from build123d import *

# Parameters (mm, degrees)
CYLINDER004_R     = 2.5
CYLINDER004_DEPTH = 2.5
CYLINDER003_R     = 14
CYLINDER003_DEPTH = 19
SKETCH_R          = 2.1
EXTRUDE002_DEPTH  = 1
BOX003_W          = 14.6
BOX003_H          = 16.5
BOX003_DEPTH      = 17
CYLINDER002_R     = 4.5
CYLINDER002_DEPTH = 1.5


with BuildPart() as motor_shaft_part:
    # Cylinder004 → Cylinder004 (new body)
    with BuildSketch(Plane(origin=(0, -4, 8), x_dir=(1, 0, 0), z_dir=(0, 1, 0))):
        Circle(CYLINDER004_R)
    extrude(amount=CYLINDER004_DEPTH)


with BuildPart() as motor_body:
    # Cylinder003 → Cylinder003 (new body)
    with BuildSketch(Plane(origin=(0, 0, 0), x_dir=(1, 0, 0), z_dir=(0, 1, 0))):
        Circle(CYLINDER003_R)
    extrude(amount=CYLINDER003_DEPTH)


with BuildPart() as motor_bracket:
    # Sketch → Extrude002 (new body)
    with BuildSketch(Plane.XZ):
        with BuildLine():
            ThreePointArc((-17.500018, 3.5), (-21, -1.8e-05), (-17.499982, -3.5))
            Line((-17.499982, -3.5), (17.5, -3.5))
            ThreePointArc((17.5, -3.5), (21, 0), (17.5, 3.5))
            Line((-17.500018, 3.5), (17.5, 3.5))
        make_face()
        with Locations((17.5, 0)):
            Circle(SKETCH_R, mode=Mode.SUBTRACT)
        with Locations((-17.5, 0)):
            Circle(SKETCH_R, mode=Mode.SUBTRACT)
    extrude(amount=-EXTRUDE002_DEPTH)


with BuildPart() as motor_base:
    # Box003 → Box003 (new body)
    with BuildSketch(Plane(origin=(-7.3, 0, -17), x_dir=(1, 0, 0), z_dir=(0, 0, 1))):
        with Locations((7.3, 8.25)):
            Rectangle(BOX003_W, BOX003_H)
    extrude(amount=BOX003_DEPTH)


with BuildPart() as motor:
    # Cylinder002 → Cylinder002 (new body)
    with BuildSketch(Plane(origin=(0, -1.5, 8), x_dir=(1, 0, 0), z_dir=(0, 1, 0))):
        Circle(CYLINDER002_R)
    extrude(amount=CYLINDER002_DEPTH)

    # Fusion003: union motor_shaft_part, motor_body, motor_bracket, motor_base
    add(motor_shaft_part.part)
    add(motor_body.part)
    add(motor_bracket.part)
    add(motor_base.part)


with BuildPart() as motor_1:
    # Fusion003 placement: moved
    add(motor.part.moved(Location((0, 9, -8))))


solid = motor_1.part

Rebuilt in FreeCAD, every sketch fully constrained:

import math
import FreeCAD as App
import Part
import Sketcher

V = App.Vector
Q = App.Units.Quantity

doc = App.newDocument("Part")
body = doc.addObject("PartDesign::Body", "Body")

# Sketch on XZ plane
sketch1 = doc.addObject("Sketcher::SketchObject", "Sketch")
body.addObject(sketch1)
sketch1.AttachmentSupport = (doc.XZ_Plane, [""])
sketch1.MapMode = "FlatFace"
sketch1.AttachmentOffset = App.Placement(V(0, 0, 4), App.Rotation())
sketch1.addGeometry(Part.Circle(V(0, 8, 0), V(0, 0, 1), 2.5), False)
sketch1.addConstraint(Sketcher.Constraint("PointOnObject", 0, 3, -2))
sketch1.addConstraint(Sketcher.Constraint("Diameter", 0, Q("5 mm")))
sketch1.addConstraint(Sketcher.Constraint("DistanceY", -1, 1, 0, 3, Q("8 mm")))
pad1 = doc.addObject("PartDesign::Pad", "Pad")
body.addObject(pad1)
pad1.Profile = sketch1
pad1.Length = 2.5
pad1.Reversed = True
body2 = doc.addObject("PartDesign::Body", "Body001")

# Sketch on XZ plane
sketch2 = doc.addObject("Sketcher::SketchObject", "Sketch001")
body2.addObject(sketch2)
sketch2.AttachmentSupport = (doc.getObject("XZ_Plane001"), [""])
sketch2.MapMode = "FlatFace"
sketch2.addGeometry(Part.Circle(V(0, 0, 0), V(0, 0, 1), 14), False)
sketch2.addConstraint(Sketcher.Constraint("Coincident", 0, 3, -1, 1))
sketch2.addConstraint(Sketcher.Constraint("Diameter", 0, Q("28 mm")))
pad2 = doc.addObject("PartDesign::Pad", "Pad001")
body2.addObject(pad2)
pad2.Profile = sketch2
pad2.Length = 19
pad2.Reversed = True
body3 = doc.addObject("PartDesign::Body", "Body002")

# Sketch on XZ plane
sketch3 = doc.addObject("Sketcher::SketchObject", "Sketch002")
body3.addObject(sketch3)
sketch3.AttachmentSupport = (doc.getObject("XZ_Plane002"), [""])
sketch3.MapMode = "FlatFace"
sketch3.addGeometry(Part.ArcOfCircle(Part.Circle(V(-17.5, 0, 0), V(0, 0, 1), 3.5), math.radians(90), math.radians(270)), False)
sketch3.addGeometry(Part.LineSegment(V(-17.5, -3.5, 0), V(17.5, -3.5, 0)), False)
sketch3.addGeometry(Part.ArcOfCircle(Part.Circle(V(17.5, 0, 0), V(0, 0, 1), 3.5), math.radians(-90), math.radians(90)), False)
sketch3.addGeometry(Part.LineSegment(V(17.5, 3.5, 0), V(-17.5, 3.5, 0)), False)
sketch3.addGeometry(Part.Circle(V(-17.5, 0, 0), V(0, 0, 1), 2.1), False)
sketch3.addGeometry(Part.Circle(V(17.5, 0, 0), V(0, 0, 1), 2.1), False)
sketch3.addConstraint(Sketcher.Constraint("Coincident", 0, 2, 1, 1))
sketch3.addConstraint(Sketcher.Constraint("Tangent", 1, 2, 2, 1))
sketch3.addConstraint(Sketcher.Constraint("Tangent", 2, 2, 3, 1))
sketch3.addConstraint(Sketcher.Constraint("Coincident", 3, 2, 0, 1))
sketch3.addConstraint(Sketcher.Constraint("Horizontal", 1))
sketch3.addConstraint(Sketcher.Constraint("Horizontal", 3))
sketch3.addConstraint(Sketcher.Constraint("Coincident", 4, 3, 0, 3))
sketch3.addConstraint(Sketcher.Constraint("Coincident", 5, 3, 2, 3))
sketch3.addConstraint(Sketcher.Constraint("Equal", 4, 5))
sketch3.addConstraint(Sketcher.Constraint("Symmetric", 0, 3, 2, 3, -1, 1))
sketch3.addConstraint(Sketcher.Constraint("Diameter", 4, Q("4.2 mm")))
sketch3.addConstraint(Sketcher.Constraint("Radius", 0, Q("3.5 mm")))
sketch3.addConstraint(Sketcher.Constraint("DistanceX", 0, 3, 2, 3, Q("35 mm")))
sketch3.addConstraint(Sketcher.Constraint("DistanceX", 1, 1, 1, 2, Q("34.999982 mm")))
sketch3.addConstraint(Sketcher.Constraint("DistanceX", 3, 2, 3, 1, Q("35.000018 mm")))
pad3 = doc.addObject("PartDesign::Pad", "Pad002")
body3.addObject(pad3)
pad3.Profile = sketch3
pad3.Length = 1
pad3.Reversed = True
body4 = doc.addObject("PartDesign::Body", "Body003")

# Sketch on XY plane
sketch4 = doc.addObject("Sketcher::SketchObject", "Sketch003")
body4.addObject(sketch4)
sketch4.AttachmentSupport = (doc.getObject("XY_Plane003"), [""])
sketch4.MapMode = "FlatFace"
sketch4.AttachmentOffset = App.Placement(V(0, 0, -17), App.Rotation())
sketch4.addGeometry(Part.LineSegment(V(-7, 16, 0), V(-7, 0, 0)), False)
sketch4.addGeometry(Part.LineSegment(V(-7, 0, 0), V(7, 0, 0)), False)
sketch4.addGeometry(Part.LineSegment(V(7, 0, 0), V(7, 16, 0)), False)
sketch4.addGeometry(Part.LineSegment(V(7, 16, 0), V(-7, 16, 0)), False)
sketch4.addConstraint(Sketcher.Constraint("Coincident", 0, 2, 1, 1))
sketch4.addConstraint(Sketcher.Constraint("Coincident", 1, 2, 2, 1))
sketch4.addConstraint(Sketcher.Constraint("Coincident", 2, 2, 3, 1))
sketch4.addConstraint(Sketcher.Constraint("Coincident", 3, 2, 0, 1))
sketch4.addConstraint(Sketcher.Constraint("Vertical", 0))
sketch4.addConstraint(Sketcher.Constraint("Horizontal", 1))
sketch4.addConstraint(Sketcher.Constraint("Vertical", 2))
sketch4.addConstraint(Sketcher.Constraint("Horizontal", 3))
sketch4.addConstraint(Sketcher.Constraint("Symmetric", 0, 2, 1, 2, -1, 1))
sketch4.addConstraint(Sketcher.Constraint("DistanceX", 1, 1, 1, 2, Q("14.6 mm")))
sketch4.addConstraint(Sketcher.Constraint("DistanceY", 0, 2, 0, 1, Q("16.5 mm")))
pad4 = doc.addObject("PartDesign::Pad", "Pad003")
body4.addObject(pad4)
pad4.Profile = sketch4
pad4.Length = 17
body5 = doc.addObject("PartDesign::Body", "Body004")

# Sketch on XZ plane
sketch5 = doc.addObject("Sketcher::SketchObject", "Sketch004")
body5.addObject(sketch5)
sketch5.AttachmentSupport = (doc.getObject("XZ_Plane004"), [""])
sketch5.MapMode = "FlatFace"
sketch5.AttachmentOffset = App.Placement(V(0, 0, 1.5), App.Rotation())
sketch5.addGeometry(Part.Circle(V(0, 8, 0), V(0, 0, 1), 4.5), False)
sketch5.addConstraint(Sketcher.Constraint("PointOnObject", 0, 3, -2))
sketch5.addConstraint(Sketcher.Constraint("Diameter", 0, Q("9 mm")))
sketch5.addConstraint(Sketcher.Constraint("DistanceY", -1, 1, 0, 3, Q("8 mm")))
pad5 = doc.addObject("PartDesign::Pad", "Pad004")
body5.addObject(pad5)
pad5.Profile = sketch5
pad5.Length = 1.5
pad5.Reversed = True
doc.recompute()

boolean = doc.addObject("PartDesign::Boolean", "Boolean")
body5.addObject(boolean)
boolean.Type = "Fuse"
boolean.addObjects([body])
doc.recompute()

boolean2 = doc.addObject("PartDesign::Boolean", "Boolean001")
body5.addObject(boolean2)
boolean2.Type = "Fuse"
boolean2.addObjects([body2])
doc.recompute()

boolean3 = doc.addObject("PartDesign::Boolean", "Boolean002")
body5.addObject(boolean3)
boolean3.Type = "Fuse"
boolean3.addObjects([body3])
doc.recompute()

boolean4 = doc.addObject("PartDesign::Boolean", "Boolean003")
body5.addObject(boolean4)
boolean4.Type = "Fuse"
boolean4.addObjects([body4])
body6 = doc.addObject("PartDesign::Body", "Body005")
doc.recompute()

body5.Placement = App.Placement(V(0, 9, -8), App.Rotation(V(0, 0, 1), 0))
boolean5 = doc.addObject("PartDesign::Boolean", "Boolean004")
body6.addObject(boolean5)
boolean5.Type = "Fuse"
boolean5.addObjects([body5])

doc.recompute()
